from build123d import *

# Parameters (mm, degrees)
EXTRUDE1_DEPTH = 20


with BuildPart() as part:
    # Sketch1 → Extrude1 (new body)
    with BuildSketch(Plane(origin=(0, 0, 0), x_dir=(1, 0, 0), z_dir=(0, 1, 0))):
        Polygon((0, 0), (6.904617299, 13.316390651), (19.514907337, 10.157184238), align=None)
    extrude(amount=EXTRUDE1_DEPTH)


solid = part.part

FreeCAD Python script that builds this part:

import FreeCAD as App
import Part
import Sketcher

doc = App.newDocument("Part")
body = doc.addObject("PartDesign::Body", "Body")

sketch1 = doc.addObject("Sketcher::SketchObject", "Sketch")
body.addObject(sketch1)
sketch1.AttachmentSupport = (doc.XZ_Plane, [""])
sketch1.MapMode = "FlatFace"
sketch1.addGeometry(Part.LineSegment(App.Vector(7, -13, 0), App.Vector(0, 0, 0)), False)
sketch1.addGeometry(Part.LineSegment(App.Vector(0, 0, 0), App.Vector(20, -10, 0)), False)
sketch1.addGeometry(Part.LineSegment(App.Vector(20, -10, 0), App.Vector(7, -13, 0)), False)
sketch1.addConstraint(Sketcher.Constraint("Coincident", 0, 2, 1, 1))
sketch1.addConstraint(Sketcher.Constraint("Coincident", 1, 2, 2, 1))
sketch1.addConstraint(Sketcher.Constraint("Coincident", 2, 2, 0, 1))
sketch1.addConstraint(Sketcher.Constraint("Coincident", 0, 2, -1, 1))
sketch1.addConstraint(Sketcher.Constraint("Distance", 0, 15.0))
sketch1.addConstraint(Sketcher.Constraint("Distance", 1, 22.0))
sketch1.addConstraint(Sketcher.Constraint("Distance", 2, 13.0))
sketch1.addConstraint(Sketcher.Constraint("DistanceY", 2, 2, -1, 1, 13.316391))
pad1 = doc.addObject("PartDesign::Pad", "Pad")
body.addObject(pad1)
pad1.Profile = sketch1
pad1.Length = 20
pad1.Reversed = True

doc.recompute()
